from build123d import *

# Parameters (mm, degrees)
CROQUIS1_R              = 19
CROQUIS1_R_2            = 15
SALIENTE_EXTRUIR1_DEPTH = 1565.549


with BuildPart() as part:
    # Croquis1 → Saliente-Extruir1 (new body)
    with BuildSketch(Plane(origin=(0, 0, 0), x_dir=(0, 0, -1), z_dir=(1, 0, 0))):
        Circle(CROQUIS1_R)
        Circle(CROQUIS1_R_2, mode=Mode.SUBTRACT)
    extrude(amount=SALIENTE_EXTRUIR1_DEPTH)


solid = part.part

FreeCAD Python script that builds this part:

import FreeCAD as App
import Part
import Sketcher
from FreeCAD import Vector
Q = App.Units.Quantity

doc = App.newDocument("Part")
body = doc.addObject("PartDesign::Body", "Body")

# Sketch on YZ plane
sketch1 = doc.addObject("Sketcher::SketchObject", "Sketch")
body.addObject(sketch1)
sketch1.AttachmentSupport = (doc.YZ_Plane, [""])
sketch1.MapMode = "FlatFace"
sketch1.addGeometry(Part.Circle(Vector(0, 0, 0), Vector(0, 0, 1), 19), False)
sketch1.addGeometry(Part.Circle(Vector(0, 0, 0), Vector(0, 0, 1), 15), False)
sketch1.addConstraint(Sketcher.Constraint("Coincident", 0, 3, -1, 1))
sketch1.addConstraint(Sketcher.Constraint("Coincident", 1, 3, -1, 1))
sketch1.addConstraint(Sketcher.Constraint("Diameter", 0, Q("38 mm")))
sketch1.addConstraint(Sketcher.Constraint("Diameter", 1, Q("30 mm")))
pad1 = doc.addObject("PartDesign::Pad", "Pad")
body.addObject(pad1)
pad1.Profile = sketch1
pad1.Length = 1565.549

doc.recompute()
